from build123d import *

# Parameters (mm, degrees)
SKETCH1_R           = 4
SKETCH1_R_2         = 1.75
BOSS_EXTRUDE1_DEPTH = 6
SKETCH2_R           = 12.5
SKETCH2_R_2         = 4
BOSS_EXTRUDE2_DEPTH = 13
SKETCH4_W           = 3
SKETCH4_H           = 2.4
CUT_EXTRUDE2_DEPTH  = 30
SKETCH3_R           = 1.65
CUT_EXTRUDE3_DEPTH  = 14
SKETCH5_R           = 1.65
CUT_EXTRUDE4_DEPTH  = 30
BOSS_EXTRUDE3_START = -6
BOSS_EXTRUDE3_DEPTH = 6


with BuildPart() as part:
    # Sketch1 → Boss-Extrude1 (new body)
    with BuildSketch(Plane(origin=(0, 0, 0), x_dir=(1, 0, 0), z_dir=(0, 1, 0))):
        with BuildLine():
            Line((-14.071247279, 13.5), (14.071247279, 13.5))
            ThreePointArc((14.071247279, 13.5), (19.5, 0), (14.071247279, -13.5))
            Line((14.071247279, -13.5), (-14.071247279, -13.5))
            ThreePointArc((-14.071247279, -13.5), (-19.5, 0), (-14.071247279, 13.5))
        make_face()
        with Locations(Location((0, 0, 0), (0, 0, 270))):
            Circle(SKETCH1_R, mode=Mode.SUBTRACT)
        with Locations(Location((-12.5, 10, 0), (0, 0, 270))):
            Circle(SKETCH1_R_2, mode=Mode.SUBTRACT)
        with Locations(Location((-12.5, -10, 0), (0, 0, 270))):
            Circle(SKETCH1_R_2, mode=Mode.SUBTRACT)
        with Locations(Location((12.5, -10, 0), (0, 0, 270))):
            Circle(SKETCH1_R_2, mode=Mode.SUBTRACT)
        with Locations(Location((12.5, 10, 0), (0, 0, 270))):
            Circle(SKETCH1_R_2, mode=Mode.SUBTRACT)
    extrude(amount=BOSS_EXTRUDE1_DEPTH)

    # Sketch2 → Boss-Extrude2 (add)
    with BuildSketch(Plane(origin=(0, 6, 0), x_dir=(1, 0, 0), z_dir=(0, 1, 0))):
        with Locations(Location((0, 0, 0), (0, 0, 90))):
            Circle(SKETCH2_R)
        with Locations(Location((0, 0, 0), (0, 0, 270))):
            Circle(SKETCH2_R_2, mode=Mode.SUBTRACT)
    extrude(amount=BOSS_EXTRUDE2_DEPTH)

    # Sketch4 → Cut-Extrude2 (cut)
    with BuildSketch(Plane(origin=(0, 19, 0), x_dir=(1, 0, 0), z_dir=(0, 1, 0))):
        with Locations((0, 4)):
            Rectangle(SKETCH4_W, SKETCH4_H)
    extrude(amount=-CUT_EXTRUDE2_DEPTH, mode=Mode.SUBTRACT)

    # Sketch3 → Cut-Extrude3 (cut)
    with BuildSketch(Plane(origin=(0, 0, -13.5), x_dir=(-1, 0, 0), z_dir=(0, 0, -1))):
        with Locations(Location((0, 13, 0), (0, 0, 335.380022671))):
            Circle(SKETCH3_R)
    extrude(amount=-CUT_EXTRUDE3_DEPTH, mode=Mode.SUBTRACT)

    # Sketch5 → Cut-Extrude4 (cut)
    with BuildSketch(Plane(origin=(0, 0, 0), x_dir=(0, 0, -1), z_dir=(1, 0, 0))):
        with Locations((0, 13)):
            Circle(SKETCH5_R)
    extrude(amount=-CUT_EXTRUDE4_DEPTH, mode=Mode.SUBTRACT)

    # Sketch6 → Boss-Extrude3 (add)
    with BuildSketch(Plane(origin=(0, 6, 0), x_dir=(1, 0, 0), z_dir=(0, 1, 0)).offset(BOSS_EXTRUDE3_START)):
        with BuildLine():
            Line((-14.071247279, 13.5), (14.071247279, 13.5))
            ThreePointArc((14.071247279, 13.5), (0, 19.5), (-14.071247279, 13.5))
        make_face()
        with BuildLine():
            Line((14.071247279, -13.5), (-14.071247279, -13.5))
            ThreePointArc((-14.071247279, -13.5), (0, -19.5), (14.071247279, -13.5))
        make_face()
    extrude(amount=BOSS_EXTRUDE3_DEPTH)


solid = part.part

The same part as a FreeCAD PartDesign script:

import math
import FreeCAD as App
import Part
import Sketcher
Q = App.Units.Quantity

doc = App.newDocument("Part")
params = doc.addObject("Spreadsheet::Sheet", "Params")
for row, (alias, value) in enumerate([
    ("sketch1_diameter", "8 mm"),
    ("sketch1_diameter2", "3.5 mm"),
    ("sketch1_radius", "19.5 mm"),
    ("pad1_length", "6 mm"),
    ("sketch2_diameter", "25 mm"),
    ("sketch2_diameter2", "8 mm"),
    ("pad2_length", "13 mm"),
    ("sketch3_width", "3 mm"),
    ("sketch3_height", "2.4 mm"),
    ("pocket1_length", "30 mm"),
    ("sketch4_diameter", "3.3 mm"),
    ("pocket2_length", "14 mm"),
    ("sketch5_diameter", "3.3 mm"),
    ("pocket3_length", "30 mm"),
    ("sketch6_radius", "19.5 mm"),
    ("pad3_length", "6 mm"),
], start=1):
    params.set(f"A{row}", alias)
    params.set(f"B{row}", "=" + value)
    params.setAlias(f"B{row}", alias)

body = doc.addObject("PartDesign::Body", "Body")

# Sketch on XZ plane
sketch1 = body.newObject("Sketcher::SketchObject", "Sketch")
sketch1.AttachmentSupport = (doc.getObject("XZ_Plane"), [""])
sketch1.MapMode = "FlatFace"
sketch1.addGeometry([
    Part.LineSegment(App.Vector(14.071247, -13.5, 0), App.Vector(-14.071247, -13.5, 0)),  # 0
    Part.ArcOfCircle(Part.Circle(App.Vector(0, 0, 0), App.Vector(0, 0, 1), 19.5), math.radians(136.186939), math.radians(223.813061)),  # 1
    Part.LineSegment(App.Vector(-14.071247, 13.5, 0), App.Vector(14.071247, 13.5, 0)),  # 2
    Part.ArcOfCircle(Part.Circle(App.Vector(0, 0, 0), App.Vector(0, 0, 1), 19.5), math.radians(-43.813061), math.radians(43.813061)),  # 3
    Part.Circle(App.Vector(12.5, 10, 0), App.Vector(0, 0, 1), 1.75),  # 4
    Part.Circle(App.Vector(-12.5, 10, 0), App.Vector(0, 0, 1), 1.75),  # 5
    Part.Circle(App.Vector(12.5, -10, 0), App.Vector(0, 0, 1), 1.75),  # 6
    Part.Circle(App.Vector(0, 0, 0), App.Vector(0, 0, 1), 4),  # 7
    Part.Circle(App.Vector(-12.5, -10, 0), App.Vector(0, 0, 1), 1.75),  # 8
], False)
sketch1.addConstraint([
    Sketcher.Constraint("Coincident", 0, 2, 1, 2),
    Sketcher.Constraint("Coincident", 1, 1, 2, 1),
    Sketcher.Constraint("Coincident", 2, 2, 3, 2),
    Sketcher.Constraint("Coincident", 3, 1, 0, 1),
    Sketcher.Constraint("Horizontal", 0),
    Sketcher.Constraint("Horizontal", 2),
    Sketcher.Constraint("Coincident", 1, 3, -1, 1),
    Sketcher.Constraint("Coincident", 3, 3, -1, 1),
    Sketcher.Constraint("Coincident", 7, 3, -1, 1),
    Sketcher.Constraint("Equal", 1, 3),
    Sketcher.Constraint("Equal", 4, 5),
    Sketcher.Constraint("Equal", 5, 6),
    Sketcher.Constraint("Equal", 6, 8),
    Sketcher.Constraint("Symmetric", 5, 3, 6, 3, -1, 1),
    Sketcher.Constraint("Symmetric", 4, 3, 8, 3, -1, 1),
    Sketcher.Constraint("Symmetric", 4, 3, 5, 3, -2),
    Sketcher.Constraint("Vertical", 0, 2, 1, 1),
    Sketcher.Constraint("Diameter", 7, Q("8 mm")),
    Sketcher.Constraint("Diameter", 4, Q("3.5 mm")),
    Sketcher.Constraint("Radius", 1, Q("19.5 mm")),
    Sketcher.Constraint("DistanceY", -1, 1, 4, 3, Q("10 mm")),
    Sketcher.Constraint("DistanceX", 5, 3, 4, 3, Q("25 mm")),
    Sketcher.Constraint("DistanceY", 0, 2, -1, 1, Q("13.5 mm")),
])
sketch1.setExpression("Constraints[17]", "Params.sketch1_diameter")
sketch1.setExpression("Constraints[18]", "Params.sketch1_diameter2")
sketch1.setExpression("Constraints[19]", "Params.sketch1_radius")
pad1 = body.newObject("PartDesign::Pad", "Pad")
pad1.Profile = sketch1
pad1.setExpression("Length", "Params.pad1_length")
pad1.Reversed = True

# Sketch on XZ plane
sketch2 = body.newObject("Sketcher::SketchObject", "Sketch001")
sketch2.AttachmentSupport = (doc.getObject("XZ_Plane"), [""])
sketch2.MapMode = "FlatFace"
sketch2.AttachmentOffset = App.Placement(App.Vector(0, 0, -6), App.Rotation())
sketch2.addGeometry([
    Part.Circle(App.Vector(0, 0, 0), App.Vector(0, 0, 1), 12.5),
    Part.Circle(App.Vector(0, 0, 0), App.Vector(0, 0, 1), 4),
], False)
sketch2.addConstraint([
    Sketcher.Constraint("Coincident", 0, 3, -1, 1),
    Sketcher.Constraint("Coincident", 1, 3, -1, 1),
    Sketcher.Constraint("Diameter", 0, Q("25 mm")),
    Sketcher.Constraint("Diameter", 1, Q("8 mm")),
])
sketch2.setExpression("Constraints[2]", "Params.sketch2_diameter")
sketch2.setExpression("Constraints[3]", "Params.sketch2_diameter2")
pad2 = body.newObject("PartDesign::Pad", "Pad001")
pad2.Profile = sketch2
pad2.setExpression("Length", "Params.pad2_length")
pad2.Reversed = True

# Sketch on XZ plane
sketch3 = body.newObject("Sketcher::SketchObject", "Sketch002")
sketch3.AttachmentSupport = (doc.getObject("XZ_Plane"), [""])
sketch3.MapMode = "FlatFace"
sketch3.AttachmentOffset = App.Placement(App.Vector(0, 0, -19), App.Rotation())
sketch3.addGeometry([
    Part.LineSegment(App.Vector(-1.5, -5.2, 0), App.Vector(-1.5, -2.8, 0)),
    Part.LineSegment(App.Vector(-1.5, -2.8, 0), App.Vector(1.5, -2.8, 0)),
    Part.LineSegment(App.Vector(1.5, -2.8, 0), App.Vector(1.5, -5.2, 0)),
    Part.LineSegment(App.Vector(1.5, -5.2, 0), App.Vector(-1.5, -5.2, 0)),
], False)
sketch3.addConstraint([
    Sketcher.Constraint("Coincident", 0, 2, 1, 1),
    Sketcher.Constraint("Coincident", 1, 2, 2, 1),
    Sketcher.Constraint("Coincident", 2, 2, 3, 1),
    Sketcher.Constraint("Coincident", 3, 2, 0, 1),
    Sketcher.Constraint("Vertical", 0),
    Sketcher.Constraint("Horizontal", 1),
    Sketcher.Constraint("Vertical", 2),
    Sketcher.Constraint("Horizontal", 3),
    Sketcher.Constraint("DistanceX", 1, 1, 1, 2, Q("3 mm")),
    Sketcher.Constraint("DistanceY", 0, 1, 0, 2, Q("2.4 mm")),
    Sketcher.Constraint("DistanceX", 0, 2, -1, 1, Q("1.5 mm")),
    Sketcher.Constraint("DistanceY", 0, 2, -1, 1, Q("2.8 mm")),
])
sketch3.setExpression("Constraints[8]", "Params.sketch3_width")
sketch3.setExpression("Constraints[9]", "Params.sketch3_height")
pocket1 = body.newObject("PartDesign::Pocket", "Pocket")
pocket1.Profile = sketch3
pocket1.setExpression("Length", "Params.pocket1_length")
pocket1.Reversed = True

# Sketch on XY plane
sketch4 = body.newObject("Sketcher::SketchObject", "Sketch003")
sketch4.AttachmentSupport = (doc.getObject("XY_Plane"), [""])
sketch4.MapMode = "FlatFace"
sketch4.AttachmentOffset = App.Placement(App.Vector(0, 0, -13.5), App.Rotation())
sketch4.addGeometry(Part.Circle(App.Vector(0, 13, 0), App.Vector(0, 0, 1), 1.65), False)
sketch4.addConstraint([
    Sketcher.Constraint("PointOnObject", 0, 3, -2),
    Sketcher.Constraint("Diameter", 0, Q("3.3 mm")),
    Sketcher.Constraint("DistanceY", -1, 1, 0, 3, Q("13 mm")),
])
sketch4.setExpression("Constraints[1]", "Params.sketch4_diameter")
pocket2 = body.newObject("PartDesign::Pocket", "Pocket001")
pocket2.Profile = sketch4
pocket2.setExpression("Length", "Params.pocket2_length")
pocket2.Reversed = True

# Sketch on YZ plane
sketch5 = body.newObject("Sketcher::SketchObject", "Sketch004")
sketch5.AttachmentSupport = (doc.getObject("YZ_Plane"), [""])
sketch5.MapMode = "FlatFace"
sketch5.addGeometry(Part.Circle(App.Vector(13, 0, 0), App.Vector(0, 0, 1), 1.65), False)
sketch5.addConstraint([
    Sketcher.Constraint("PointOnObject", 0, 3, -1),
    Sketcher.Constraint("Diameter", 0, Q("3.3 mm")),
    Sketcher.Constraint("DistanceX", -1, 1, 0, 3, Q("13 mm")),
])
sketch5.setExpression("Constraints[1]", "Params.sketch5_diameter")
pocket3 = body.newObject("PartDesign::Pocket", "Pocket002")
pocket3.Profile = sketch5
pocket3.setExpression("Length", "Params.pocket3_length")

# Sketch on XZ plane
sketch6 = body.newObject("Sketcher::SketchObject", "Sketch005")
sketch6.AttachmentSupport = (doc.getObject("XZ_Plane"), [""])
sketch6.MapMode = "FlatFace"
sketch6.addGeometry([
    Part.LineSegment(App.Vector(-14.071247, -13.5, 0), App.Vector(14.071247, -13.5, 0)),
    Part.ArcOfCircle(Part.Circle(App.Vector(0, 0, 0), App.Vector(0, 0, 1), 19.5), math.radians(-136.186939), math.radians(-43.813061)),
    Part.LineSegment(App.Vector(14.071247, 13.5, 0), App.Vector(-14.071247, 13.5, 0)),
    Part.ArcOfCircle(Part.Circle(App.Vector(0, 0, 0), App.Vector(0, 0, 1), 19.5), math.radians(43.813061), math.radians(136.186939)),
], False)
sketch6.addConstraint([
    Sketcher.Constraint("Coincident", 0, 1, 1, 1),
    Sketcher.Constraint("Coincident", 1, 2, 0, 2),
    Sketcher.Constraint("Coincident", 2, 1, 3, 1),
    Sketcher.Constraint("Coincident", 3, 2, 2, 2),
    Sketcher.Constraint("Horizontal", 0),
    Sketcher.Constraint("Horizontal", 2),
    Sketcher.Constraint("Coincident", 1, 3, -1, 1),
    Sketcher.Constraint("Coincident", 3, 3, -1, 1),
    Sketcher.Constraint("Equal", 1, 3),
    Sketcher.Constraint("Vertical", 1, 2, 2, 1),
    Sketcher.Constraint("Radius", 1, Q("19.5 mm")),
    Sketcher.Constraint("DistanceY", 1, 2, 2, 1, Q("27 mm")),
])
sketch6.setExpression("Constraints[10]", "Params.sketch6_radius")
pad3 = body.newObject("PartDesign::Pad", "Pad002")
pad3.Profile = sketch6
pad3.setExpression("Length", "Params.pad3_length")
pad3.Reversed = True

doc.recompute()
